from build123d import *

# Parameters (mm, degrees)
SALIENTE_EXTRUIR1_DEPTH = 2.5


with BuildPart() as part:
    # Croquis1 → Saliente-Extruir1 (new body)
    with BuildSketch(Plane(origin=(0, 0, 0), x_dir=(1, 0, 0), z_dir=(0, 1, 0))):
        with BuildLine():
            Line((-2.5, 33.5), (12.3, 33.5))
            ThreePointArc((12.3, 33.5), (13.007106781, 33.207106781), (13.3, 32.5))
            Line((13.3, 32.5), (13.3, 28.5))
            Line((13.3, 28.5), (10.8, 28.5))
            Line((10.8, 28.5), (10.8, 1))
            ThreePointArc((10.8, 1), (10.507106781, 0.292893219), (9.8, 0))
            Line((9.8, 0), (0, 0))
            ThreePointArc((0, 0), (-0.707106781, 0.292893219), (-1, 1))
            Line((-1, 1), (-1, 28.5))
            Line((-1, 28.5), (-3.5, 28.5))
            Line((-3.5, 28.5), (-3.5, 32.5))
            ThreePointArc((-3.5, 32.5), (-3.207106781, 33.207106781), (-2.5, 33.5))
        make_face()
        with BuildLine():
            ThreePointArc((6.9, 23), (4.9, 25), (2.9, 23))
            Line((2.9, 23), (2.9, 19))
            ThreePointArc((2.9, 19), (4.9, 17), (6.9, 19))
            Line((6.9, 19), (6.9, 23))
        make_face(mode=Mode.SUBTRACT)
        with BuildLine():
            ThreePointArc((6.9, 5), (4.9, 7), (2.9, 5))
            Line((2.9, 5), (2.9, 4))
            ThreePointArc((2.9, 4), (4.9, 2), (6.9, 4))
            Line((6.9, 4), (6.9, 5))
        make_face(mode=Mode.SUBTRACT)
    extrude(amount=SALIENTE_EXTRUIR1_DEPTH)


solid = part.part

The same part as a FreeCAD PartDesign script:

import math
import FreeCAD as App
import Part
import Sketcher
from FreeCAD import Vector
Q = App.Units.Quantity

doc = App.newDocument("Part")
body = doc.addObject("PartDesign::Body", "Body")

# Sketch on XZ plane
sketch1 = body.newObject("Sketcher::SketchObject", "Sketch")
sketch1.AttachmentSupport = (doc.getObject("XZ_Plane"), [""])
sketch1.MapMode = "FlatFace"
sketch1.addGeometry([
    Part.LineSegment(Vector(12.3, -33.5, 0), Vector(-2.5, -33.5, 0)),  # 0
    Part.ArcOfCircle(Part.Circle(Vector(-2.5, -32.5, 0), Vector(0, 0, 1), 1), math.radians(-180), math.radians(-90)),  # 1
    Part.LineSegment(Vector(-3.5, -32.5, 0), Vector(-3.5, -28.5, 0)),  # 2
    Part.LineSegment(Vector(-3.5, -28.5, 0), Vector(-1, -28.5, 0)),  # 3
    Part.LineSegment(Vector(-1, -28.5, 0), Vector(-1, -1, 0)),  # 4
    Part.ArcOfCircle(Part.Circle(Vector(0, -1, 0), Vector(0, 0, 1), 1), math.radians(90), math.radians(180)),  # 5
    Part.LineSegment(Vector(0, 0, 0), Vector(9.8, 0, 0)),  # 6
    Part.ArcOfCircle(Part.Circle(Vector(9.8, -1, 0), Vector(0, 0, 1), 1), math.radians(0), math.radians(90)),  # 7
    Part.LineSegment(Vector(10.8, -1, 0), Vector(10.8, -28.5, 0)),  # 8
    Part.LineSegment(Vector(10.8, -28.5, 0), Vector(13.3, -28.5, 0)),  # 9
    Part.LineSegment(Vector(13.3, -28.5, 0), Vector(13.3, -32.5, 0)),  # 10
    Part.ArcOfCircle(Part.Circle(Vector(12.3, -32.5, 0), Vector(0, 0, 1), 1), math.radians(-90), math.radians(0)),  # 11
    Part.LineSegment(Vector(6.9, -5, 0), Vector(6.9, -4, 0)),  # 12
    Part.ArcOfCircle(Part.Circle(Vector(4.9, -4, 0), Vector(0, 0, 1), 2), math.radians(0), math.radians(180)),  # 13
    Part.LineSegment(Vector(2.9, -4, 0), Vector(2.9, -5, 0)),  # 14
    Part.ArcOfCircle(Part.Circle(Vector(4.9, -5, 0), Vector(0, 0, 1), 2), math.radians(180), math.radians(360)),  # 15
    Part.LineSegment(Vector(6.9, -23, 0), Vector(6.9, -19, 0)),  # 16
    Part.ArcOfCircle(Part.Circle(Vector(4.9, -19, 0), Vector(0, 0, 1), 2), math.radians(0), math.radians(180)),  # 17
    Part.LineSegment(Vector(2.9, -19, 0), Vector(2.9, -23, 0)),  # 18
    Part.ArcOfCircle(Part.Circle(Vector(4.9, -23, 0), Vector(0, 0, 1), 2), math.radians(180), math.radians(360)),  # 19
], False)
sketch1.addConstraint([
    Sketcher.Constraint("Tangent", 0, 2, 1, 2),
    Sketcher.Constraint("Tangent", 1, 1, 2, 1),
    Sketcher.Constraint("Coincident", 2, 2, 3, 1),
    Sketcher.Constraint("Coincident", 3, 2, 4, 1),
    Sketcher.Constraint("Tangent", 4, 2, 5, 2),
    Sketcher.Constraint("Tangent", 5, 1, 6, 1),
    Sketcher.Constraint("Tangent", 6, 2, 7, 2),
    Sketcher.Constraint("Tangent", 7, 1, 8, 1),
    Sketcher.Constraint("Coincident", 8, 2, 9, 1),
    Sketcher.Constraint("Coincident", 9, 2, 10, 1),
    Sketcher.Constraint("Tangent", 10, 2, 11, 2),
    Sketcher.Constraint("Tangent", 11, 1, 0, 1),
    Sketcher.Constraint("Tangent", 12, 2, 13, 1),
    Sketcher.Constraint("Tangent", 13, 2, 14, 1),
    Sketcher.Constraint("Tangent", 14, 2, 15, 1),
    Sketcher.Constraint("Tangent", 15, 2, 12, 1),
    Sketcher.Constraint("Tangent", 16, 2, 17, 1),
    Sketcher.Constraint("Tangent", 17, 2, 18, 1),
    Sketcher.Constraint("Tangent", 18, 2, 19, 1),
    Sketcher.Constraint("Tangent", 19, 2, 16, 1),
    Sketcher.Constraint("Horizontal", 0),
    Sketcher.Constraint("Vertical", 2),
    Sketcher.Constraint("Horizontal", 3),
    Sketcher.Constraint("Vertical", 4),
    Sketcher.Constraint("Horizontal", 6),
    Sketcher.Constraint("Vertical", 8),
    Sketcher.Constraint("Horizontal", 9),
    Sketcher.Constraint("Vertical", 10),
    Sketcher.Constraint("Vertical", 12),
    Sketcher.Constraint("Vertical", 14),
    Sketcher.Constraint("Vertical", 16),
    Sketcher.Constraint("Vertical", 18),
    Sketcher.Constraint("Coincident", 5, 1, -1, 1),
    Sketcher.Constraint("Equal", 1, 5),
    Sketcher.Constraint("Equal", 5, 7),
    Sketcher.Constraint("Equal", 7, 11),
    Sketcher.Constraint("Equal", 15, 17),
    Sketcher.Constraint("Horizontal", 3, 2, 8, 2),
    Sketcher.Constraint("Vertical", 15, 3, 17, 3),
    Sketcher.Constraint("Equal", 3, 9),
    Sketcher.Constraint("Equal", 10, 16),
    Sketcher.Constraint("Radius", 1, Q("1 mm")),
    Sketcher.Constraint("Radius", 13, Q("2 mm")),
    Sketcher.Constraint("DistanceY", 2, 1, 2, 2, Q("4 mm")),
    Sketcher.Constraint("DistanceY", 12, 1, 12, 2, Q("1 mm")),
    Sketcher.Constraint("DistanceX", 0, 2, 0, 1, Q("14.8 mm")),
    Sketcher.Constraint("DistanceX", 3, 1, 3, 2, Q("2.5 mm")),
    Sketcher.Constraint("DistanceY", 4, 1, 4, 2, Q("27.5 mm")),
    Sketcher.Constraint("DistanceY", 13, 3, -1, 1, Q("4 mm")),
    Sketcher.Constraint("DistanceY", 17, 3, -1, 1, Q("19 mm")),
    Sketcher.Constraint("DistanceX", -1, 1, 13, 3, Q("4.9 mm")),
])
pad1 = body.newObject("PartDesign::Pad", "Pad")
pad1.Profile = sketch1
pad1.Length = 2.5
pad1.Reversed = True

doc.recompute()
